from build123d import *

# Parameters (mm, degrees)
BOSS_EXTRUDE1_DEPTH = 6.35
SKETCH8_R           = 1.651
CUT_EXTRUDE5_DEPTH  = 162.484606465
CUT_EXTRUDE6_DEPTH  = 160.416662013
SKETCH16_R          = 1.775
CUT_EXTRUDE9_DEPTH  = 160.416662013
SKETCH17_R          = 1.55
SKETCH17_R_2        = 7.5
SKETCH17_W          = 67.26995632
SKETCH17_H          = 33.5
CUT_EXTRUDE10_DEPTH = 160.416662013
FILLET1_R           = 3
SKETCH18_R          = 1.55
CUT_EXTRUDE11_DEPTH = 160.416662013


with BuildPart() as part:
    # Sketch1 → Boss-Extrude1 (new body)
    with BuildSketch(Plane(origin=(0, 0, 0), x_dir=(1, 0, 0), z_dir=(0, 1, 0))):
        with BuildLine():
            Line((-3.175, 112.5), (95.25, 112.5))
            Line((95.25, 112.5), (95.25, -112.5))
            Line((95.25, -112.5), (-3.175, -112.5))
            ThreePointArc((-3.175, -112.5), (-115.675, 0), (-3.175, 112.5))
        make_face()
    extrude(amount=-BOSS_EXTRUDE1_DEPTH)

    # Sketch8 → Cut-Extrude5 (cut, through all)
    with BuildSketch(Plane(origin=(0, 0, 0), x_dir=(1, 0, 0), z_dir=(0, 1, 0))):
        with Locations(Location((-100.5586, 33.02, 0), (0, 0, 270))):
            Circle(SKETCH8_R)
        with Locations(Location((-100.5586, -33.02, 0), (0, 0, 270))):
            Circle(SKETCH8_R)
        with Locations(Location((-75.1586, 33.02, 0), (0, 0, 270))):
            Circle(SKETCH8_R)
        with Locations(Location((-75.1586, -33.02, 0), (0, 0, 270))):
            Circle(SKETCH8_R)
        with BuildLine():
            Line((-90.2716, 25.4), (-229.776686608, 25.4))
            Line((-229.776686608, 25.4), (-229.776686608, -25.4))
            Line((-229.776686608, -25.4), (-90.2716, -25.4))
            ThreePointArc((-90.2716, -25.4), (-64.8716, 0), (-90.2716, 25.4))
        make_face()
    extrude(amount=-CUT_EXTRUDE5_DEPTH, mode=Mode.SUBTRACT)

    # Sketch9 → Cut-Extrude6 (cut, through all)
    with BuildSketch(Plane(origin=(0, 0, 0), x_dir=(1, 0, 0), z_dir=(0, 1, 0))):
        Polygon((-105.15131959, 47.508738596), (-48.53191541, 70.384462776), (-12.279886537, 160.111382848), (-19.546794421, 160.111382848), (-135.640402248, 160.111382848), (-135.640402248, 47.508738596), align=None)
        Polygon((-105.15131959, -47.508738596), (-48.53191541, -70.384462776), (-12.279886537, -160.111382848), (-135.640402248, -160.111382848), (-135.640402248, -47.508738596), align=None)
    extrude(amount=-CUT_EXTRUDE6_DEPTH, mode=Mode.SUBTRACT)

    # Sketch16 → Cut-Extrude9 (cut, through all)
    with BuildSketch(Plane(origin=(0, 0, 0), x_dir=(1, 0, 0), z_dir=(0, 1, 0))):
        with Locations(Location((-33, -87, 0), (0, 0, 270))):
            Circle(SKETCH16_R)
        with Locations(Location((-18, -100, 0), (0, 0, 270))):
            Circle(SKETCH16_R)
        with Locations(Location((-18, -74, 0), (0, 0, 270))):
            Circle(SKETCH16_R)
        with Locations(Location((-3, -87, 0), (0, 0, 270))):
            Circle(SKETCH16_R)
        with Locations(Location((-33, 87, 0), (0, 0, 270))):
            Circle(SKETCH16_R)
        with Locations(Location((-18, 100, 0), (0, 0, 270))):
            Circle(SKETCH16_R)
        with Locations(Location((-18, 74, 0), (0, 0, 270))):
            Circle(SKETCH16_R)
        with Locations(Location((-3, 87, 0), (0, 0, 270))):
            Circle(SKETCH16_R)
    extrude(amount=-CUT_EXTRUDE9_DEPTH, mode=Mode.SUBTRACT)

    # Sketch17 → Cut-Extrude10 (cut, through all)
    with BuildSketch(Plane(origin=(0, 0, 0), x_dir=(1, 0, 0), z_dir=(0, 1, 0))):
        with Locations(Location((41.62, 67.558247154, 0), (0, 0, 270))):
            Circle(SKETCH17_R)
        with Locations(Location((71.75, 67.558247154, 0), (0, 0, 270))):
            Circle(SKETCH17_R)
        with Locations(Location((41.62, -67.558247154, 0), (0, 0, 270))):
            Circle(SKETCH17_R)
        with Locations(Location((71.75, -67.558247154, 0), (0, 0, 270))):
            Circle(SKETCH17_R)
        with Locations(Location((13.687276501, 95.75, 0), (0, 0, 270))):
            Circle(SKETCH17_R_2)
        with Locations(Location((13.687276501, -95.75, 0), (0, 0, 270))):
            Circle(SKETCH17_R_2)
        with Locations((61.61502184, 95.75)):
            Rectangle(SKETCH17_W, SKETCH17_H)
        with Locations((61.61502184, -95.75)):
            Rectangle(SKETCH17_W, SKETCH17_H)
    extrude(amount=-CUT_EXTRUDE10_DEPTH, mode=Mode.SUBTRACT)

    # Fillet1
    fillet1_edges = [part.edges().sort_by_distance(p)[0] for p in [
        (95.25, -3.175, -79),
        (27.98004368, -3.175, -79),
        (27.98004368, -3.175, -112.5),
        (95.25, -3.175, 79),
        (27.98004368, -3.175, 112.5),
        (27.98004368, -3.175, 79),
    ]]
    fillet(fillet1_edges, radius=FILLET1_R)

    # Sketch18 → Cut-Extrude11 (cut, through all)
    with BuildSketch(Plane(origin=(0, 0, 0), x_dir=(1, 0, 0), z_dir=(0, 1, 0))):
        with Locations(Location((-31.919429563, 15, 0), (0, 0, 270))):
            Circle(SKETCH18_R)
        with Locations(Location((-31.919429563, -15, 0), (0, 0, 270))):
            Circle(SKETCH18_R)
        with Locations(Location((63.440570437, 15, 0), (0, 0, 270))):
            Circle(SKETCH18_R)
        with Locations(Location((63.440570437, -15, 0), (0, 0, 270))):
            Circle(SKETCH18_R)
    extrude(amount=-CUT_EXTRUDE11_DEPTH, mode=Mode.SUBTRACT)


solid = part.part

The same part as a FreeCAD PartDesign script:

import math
import FreeCAD as App
import Part
import Sketcher
Q = App.Units.Quantity


def edges_at(feature, points):
    """Names of the edges that pass closest to the given points."""
    edges = feature.Shape.Edges
    near = lambda p: min(range(len(edges)), key=lambda i: edges[i].distToShape(Part.Vertex(*p))[0])
    return sorted({f"Edge{near(p) + 1}" for p in points})


def add_polygon(sketch, points):
    """Adds a closed chain of lines whose ends are joined by coincident constraints."""
    first, n = sketch.GeometryCount, len(points)
    for a, b in zip(points, points[1:] + points[:1]):
        sketch.addGeometry(Part.LineSegment(App.Vector(*a, 0), App.Vector(*b, 0)), False)
    for i in range(n):
        sketch.addConstraint(Sketcher.Constraint("Coincident", first + i, 2, first + (i + 1) % n, 1))

doc = App.newDocument("Part")
body = doc.addObject("PartDesign::Body", "Body")

# Sketch on XZ plane
sketch1 = doc.addObject("Sketcher::SketchObject", "Sketch")
body.addObject(sketch1)
sketch1.AttachmentSupport = (doc.XZ_Plane, [""])
sketch1.MapMode = "FlatFace"
sketch1.addGeometry([
    Part.LineSegment(App.Vector(95, -112, 0), App.Vector(-3, -112, 0)),
    Part.ArcOfCircle(Part.Circle(App.Vector(-3, 0, 0), App.Vector(0, 0, 1), 112), math.radians(90), math.radians(270)),
    Part.LineSegment(App.Vector(-3, 112, 0), App.Vector(95, 112, 0)),
    Part.LineSegment(App.Vector(95, 112, 0), App.Vector(95, -112, 0)),
], False)
sketch1.addConstraint([
    Sketcher.Constraint("Tangent", 0, 2, 1, 2),
    Sketcher.Constraint("Tangent", 1, 1, 2, 1),
    Sketcher.Constraint("Coincident", 2, 2, 3, 1),
    Sketcher.Constraint("Coincident", 3, 2, 0, 1),
    Sketcher.Constraint("Horizontal", 0),
    Sketcher.Constraint("Horizontal", 2),
    Sketcher.Constraint("Vertical", 3),
    Sketcher.Constraint("PointOnObject", 1, 3, -1),
    Sketcher.Constraint("Radius", 1, Q("112.5 mm")),
    Sketcher.Constraint("DistanceX", 0, 2, 0, 1, Q("98.425 mm")),
    Sketcher.Constraint("DistanceX", -1, 1, 2, 2, Q("95.25 mm")),
])
pad1 = doc.addObject("PartDesign::Pad", "Pad")
body.addObject(pad1)
pad1.Profile = sketch1
pad1.Length = 6.35

# Sketch on XZ plane
sketch2 = doc.addObject("Sketcher::SketchObject", "Sketch001")
body.addObject(sketch2)
sketch2.AttachmentSupport = (doc.XZ_Plane, [""])
sketch2.MapMode = "FlatFace"
sketch2.addGeometry([
    Part.Circle(App.Vector(-100.6, -33, 0), App.Vector(0, 0, 1), 1.7),  # 0
    Part.Circle(App.Vector(-100.6, 33, 0), App.Vector(0, 0, 1), 1.7),  # 1
    Part.Circle(App.Vector(-75.2, -33, 0), App.Vector(0, 0, 1), 1.7),  # 2
    Part.Circle(App.Vector(-75.2, 33, 0), App.Vector(0, 0, 1), 1.7),  # 3
    Part.LineSegment(App.Vector(-90.3, -25.4, 0), App.Vector(-229.8, -25.4, 0)),  # 4
    Part.LineSegment(App.Vector(-229.8, -25.4, 0), App.Vector(-229.8, 25.4, 0)),  # 5
    Part.LineSegment(App.Vector(-229.8, 25.4, 0), App.Vector(-90.3, 25.4, 0)),  # 6
    Part.ArcOfCircle(Part.Circle(App.Vector(-90.3, 0, 0), App.Vector(0, 0, 1), 25.4), math.radians(-90), math.radians(90)),  # 7
], False)
sketch2.addConstraint([
    Sketcher.Constraint("Coincident", 4, 2, 5, 1),
    Sketcher.Constraint("Coincident", 5, 2, 6, 1),
    Sketcher.Constraint("Tangent", 6, 2, 7, 2),
    Sketcher.Constraint("Tangent", 7, 1, 4, 1),
    Sketcher.Constraint("Horizontal", 4),
    Sketcher.Constraint("Vertical", 5),
    Sketcher.Constraint("Horizontal", 6),
    Sketcher.Constraint("Equal", 0, 1),
    Sketcher.Constraint("Equal", 1, 2),
    Sketcher.Constraint("Equal", 2, 3),
    Sketcher.Constraint("Symmetric", 0, 3, 1, 3, -1),
    Sketcher.Constraint("Symmetric", 2, 3, 3, 3, -1),
    Sketcher.Constraint("PointOnObject", 7, 3, -1),
    Sketcher.Constraint("Horizontal", 0, 3, 2, 3),
    Sketcher.Constraint("Radius", 7, Q("25.4 mm")),
    Sketcher.Constraint("Diameter", 0, Q("3.302 mm")),
    Sketcher.Constraint("DistanceX", 0, 3, 2, 3, Q("25.4 mm")),
    Sketcher.Constraint("DistanceY", 0, 3, -1, 1, Q("33.02 mm")),
    Sketcher.Constraint("DistanceX", 0, 3, 7, 3, Q("10.287 mm")),
    Sketcher.Constraint("DistanceX", 0, 3, -1, 1, Q("100.5586 mm")),
    Sketcher.Constraint("DistanceX", 4, 2, 4, 1, Q("139.505087 mm")),
])
pocket1 = doc.addObject("PartDesign::Pocket", "Pocket")
body.addObject(pocket1)
pocket1.Profile = sketch2
pocket1.Type = "ThroughAll"
pocket1.Reversed = True

# Sketch on XZ plane
sketch3 = doc.addObject("Sketcher::SketchObject", "Sketch002")
body.addObject(sketch3)
sketch3.AttachmentSupport = (doc.XZ_Plane, [""])
sketch3.MapMode = "FlatFace"
add_polygon(sketch3, [(-105, -48), (-49, -70), (-12, -160), (-136, -160), (-136, -48)])  # lines 0-4
add_polygon(sketch3, [(-49, 70), (-105, 48), (-136, 48), (-136, 160), (-12, 160)])  # lines 5-9
sketch3.addConstraint([
    Sketcher.Constraint("Horizontal", 2),
    Sketcher.Constraint("Vertical", 3),
    Sketcher.Constraint("Horizontal", 4),
    Sketcher.Constraint("Horizontal", 6),
    Sketcher.Constraint("Vertical", 7),
    Sketcher.Constraint("Horizontal", 8),
    Sketcher.Constraint("Symmetric", 4, 2, 5, 2, -1),
    Sketcher.Constraint("Symmetric", 2, 2, 7, 2, -1),
    Sketcher.Constraint("Symmetric", 0, 2, 9, 2, -1),
    Sketcher.Constraint("Perpendicular", 1, 5),
    Sketcher.Constraint("Perpendicular", 0, 9),
    Sketcher.Constraint("Angle", 0, Q("-22 deg")),
    Sketcher.Constraint("Distance", 1, Q("96.773601 mm")),
    Sketcher.Constraint("DistanceY", 0, 2, 5, 2, Q("117.893201 mm")),
    Sketcher.Constraint("DistanceX", 2, 2, 2, 1, Q("123.360516 mm")),
    Sketcher.Constraint("DistanceX", 4, 1, 4, 2, Q("30.489083 mm")),
    Sketcher.Constraint("DistanceX", 4, 2, -1, 1, Q("105.15132 mm")),
])
pocket2 = doc.addObject("PartDesign::Pocket", "Pocket001")
body.addObject(pocket2)
pocket2.Profile = sketch3
pocket2.Type = "ThroughAll"
pocket2.Reversed = True

# Sketch on XZ plane
sketch4 = doc.addObject("Sketcher::SketchObject", "Sketch003")
body.addObject(sketch4)
sketch4.AttachmentSupport = (doc.XZ_Plane, [""])
sketch4.MapMode = "FlatFace"
sketch4.addGeometry([
    Part.Circle(App.Vector(-33, 87, 0), App.Vector(0, 0, 1), 1.8),  # 0
    Part.Circle(App.Vector(-18, 100, 0), App.Vector(0, 0, 1), 1.8),  # 1
    Part.Circle(App.Vector(-18, 74, 0), App.Vector(0, 0, 1), 1.8),  # 2
    Part.Circle(App.Vector(-3, 87, 0), App.Vector(0, 0, 1), 1.8),  # 3
    Part.Circle(App.Vector(-33, -87, 0), App.Vector(0, 0, 1), 1.8),  # 4
    Part.Circle(App.Vector(-18, -100, 0), App.Vector(0, 0, 1), 1.8),  # 5
    Part.Circle(App.Vector(-18, -74, 0), App.Vector(0, 0, 1), 1.8),  # 6
    Part.Circle(App.Vector(-3, -87, 0), App.Vector(0, 0, 1), 1.8),  # 7
], False)
sketch4.addConstraint([
    Sketcher.Constraint("Equal", 0, 1),
    Sketcher.Constraint("Equal", 1, 2),
    Sketcher.Constraint("Equal", 2, 3),
    Sketcher.Constraint("Equal", 3, 4),
    Sketcher.Constraint("Equal", 4, 5),
    Sketcher.Constraint("Equal", 5, 6),
    Sketcher.Constraint("Equal", 6, 7),
    Sketcher.Constraint("Symmetric", 0, 3, 4, 3, -1),
    Sketcher.Constraint("Symmetric", 1, 3, 5, 3, -1),
    Sketcher.Constraint("Symmetric", 2, 3, 6, 3, -1),
    Sketcher.Constraint("Symmetric", 3, 3, 7, 3, -1),
    Sketcher.Constraint("Horizontal", 0, 3, 3, 3),
    Sketcher.Constraint("Vertical", 1, 3, 2, 3),
    Sketcher.Constraint("Diameter", 0, Q("3.55 mm")),
    Sketcher.Constraint("DistanceX", 0, 3, -1, 1, Q("33 mm")),
    Sketcher.Constraint("DistanceY", -1, 1, 0, 3, Q("87 mm")),
    Sketcher.Constraint("DistanceX", 1, 3, -1, 1, Q("18 mm")),
    Sketcher.Constraint("DistanceY", -1, 1, 1, 3, Q("100 mm")),
    Sketcher.Constraint("DistanceY", -1, 1, 2, 3, Q("74 mm")),
    Sketcher.Constraint("DistanceX", 3, 3, -1, 1, Q("3 mm")),
])
pocket3 = doc.addObject("PartDesign::Pocket", "Pocket002")
body.addObject(pocket3)
pocket3.Profile = sketch4
pocket3.Type = "ThroughAll"
pocket3.Reversed = True

# Sketch on XZ plane
sketch5 = doc.addObject("Sketcher::SketchObject", "Sketch004")
body.addObject(sketch5)
sketch5.AttachmentSupport = (doc.XZ_Plane, [""])
sketch5.MapMode = "FlatFace"
sketch5.addGeometry(Part.Circle(App.Vector(41.6, -67.6, 0), App.Vector(0, 0, 1), 1.6), False)  # 0
sketch5.addGeometry(Part.Circle(App.Vector(71.8, -67.6, 0), App.Vector(0, 0, 1), 1.6), False)  # 1
sketch5.addGeometry(Part.Circle(App.Vector(41.6, 67.6, 0), App.Vector(0, 0, 1), 1.6), False)  # 2
sketch5.addGeometry(Part.Circle(App.Vector(71.8, 67.6, 0), App.Vector(0, 0, 1), 1.6), False)  # 3
sketch5.addGeometry(Part.Circle(App.Vector(13.7, -95.8, 0), App.Vector(0, 0, 1), 7.5), False)  # 4
sketch5.addGeometry(Part.Circle(App.Vector(13.7, 95.8, 0), App.Vector(0, 0, 1), 7.5), False)  # 5
add_polygon(sketch5, [(28, -112.5), (28, -79), (95.2, -79), (95.2, -112.5)])  # lines 6-9
add_polygon(sketch5, [(28, 79), (28, 112.5), (95.2, 112.5), (95.2, 79)])  # lines 10-13
sketch5.addConstraint([
    Sketcher.Constraint("Vertical", 6),
    Sketcher.Constraint("Horizontal", 7),
    Sketcher.Constraint("Vertical", 8),
    Sketcher.Constraint("Horizontal", 9),
    Sketcher.Constraint("Vertical", 10),
    Sketcher.Constraint("Horizontal", 11),
    Sketcher.Constraint("Vertical", 12),
    Sketcher.Constraint("Horizontal", 13),
    Sketcher.Constraint("Equal", 0, 1),
    Sketcher.Constraint("Equal", 1, 2),
    Sketcher.Constraint("Equal", 2, 3),
    Sketcher.Constraint("Equal", 4, 5),
    Sketcher.Constraint("Symmetric", 0, 3, 2, 3, -1),
    Sketcher.Constraint("Symmetric", 1, 3, 3, 3, -1),
    Sketcher.Constraint("Symmetric", 4, 3, 5, 3, -1),
    Sketcher.Constraint("Symmetric", 9, 2, 10, 2, -1),
    Sketcher.Constraint("Symmetric", 7, 2, 12, 2, -1),
    Sketcher.Constraint("Horizontal", 0, 3, 1, 3),
    Sketcher.Constraint("Diameter", 4, Q("15 mm")),
    Sketcher.Constraint("Diameter", 0, Q("3.1 mm")),
    Sketcher.Constraint("DistanceY", 6, 1, 6, 2, Q("33.5 mm")),
    Sketcher.Constraint("DistanceY", 6, 2, -1, 1, Q("79 mm")),
    Sketcher.Constraint("DistanceY", 4, 3, 5, 3, Q("191.5 mm")),
    Sketcher.Constraint("DistanceX", 1, 3, 7, 2, Q("23.5 mm")),
    Sketcher.Constraint("DistanceX", -1, 1, 0, 3, Q("41.62 mm")),
    Sketcher.Constraint("DistanceX", -1, 1, 1, 3, Q("71.75 mm")),
    Sketcher.Constraint("DistanceX", 7, 1, 7, 2, Q("67.269956 mm")),
    Sketcher.Constraint("DistanceY", 0, 3, -1, 1, Q("67.558247 mm")),
    Sketcher.Constraint("DistanceX", -1, 1, 4, 3, Q("13.687277 mm")),
])
pocket4 = doc.addObject("PartDesign::Pocket", "Pocket003")
body.addObject(pocket4)
pocket4.Profile = sketch5
pocket4.Type = "ThroughAll"
pocket4.Reversed = True
doc.recompute()

fillet = doc.addObject("PartDesign::Fillet", "Fillet")
body.addObject(fillet)
fillet.Base = (pocket4, edges_at(pocket4, [
    (95.25, -3.175, -79),
    (27.98, -3.175, -79),
    (27.98, -3.175, -112.5),
    (95.25, -3.175, 79),
    (27.98, -3.175, 112.5),
    (27.98, -3.175, 79),
]))
fillet.Radius = 3

# Sketch on XZ plane
sketch6 = doc.addObject("Sketcher::SketchObject", "Sketch005")
body.addObject(sketch6)
sketch6.AttachmentSupport = (doc.XZ_Plane, [""])
sketch6.MapMode = "FlatFace"
sketch6.addGeometry([
    Part.Circle(App.Vector(-31.9, -15, 0), App.Vector(0, 0, 1), 1.6),
    Part.Circle(App.Vector(-31.9, 15, 0), App.Vector(0, 0, 1), 1.6),
    Part.Circle(App.Vector(63.4, -15, 0), App.Vector(0, 0, 1), 1.6),
    Part.Circle(App.Vector(63.4, 15, 0), App.Vector(0, 0, 1), 1.6),
], False)
sketch6.addConstraint([
    Sketcher.Constraint("Equal", 0, 1),
    Sketcher.Constraint("Equal", 1, 2),
    Sketcher.Constraint("Equal", 2, 3),
    Sketcher.Constraint("Symmetric", 0, 3, 1, 3, -1),
    Sketcher.Constraint("Symmetric", 2, 3, 3, 3, -1),
    Sketcher.Constraint("Horizontal", 0, 3, 2, 3),
    Sketcher.Constraint("Diameter", 0, Q("3.1 mm")),
    Sketcher.Constraint("DistanceY", 0, 3, -1, 1, Q("15 mm")),
    Sketcher.Constraint("DistanceX", 0, 3, 2, 3, Q("95.36 mm")),
    Sketcher.Constraint("DistanceX", 0, 3, -1, 1, Q("31.91943 mm")),
])
pocket5 = doc.addObject("PartDesign::Pocket", "Pocket004")
body.addObject(pocket5)
pocket5.Profile = sketch6
pocket5.Type = "ThroughAll"
pocket5.Reversed = True

doc.recompute()
